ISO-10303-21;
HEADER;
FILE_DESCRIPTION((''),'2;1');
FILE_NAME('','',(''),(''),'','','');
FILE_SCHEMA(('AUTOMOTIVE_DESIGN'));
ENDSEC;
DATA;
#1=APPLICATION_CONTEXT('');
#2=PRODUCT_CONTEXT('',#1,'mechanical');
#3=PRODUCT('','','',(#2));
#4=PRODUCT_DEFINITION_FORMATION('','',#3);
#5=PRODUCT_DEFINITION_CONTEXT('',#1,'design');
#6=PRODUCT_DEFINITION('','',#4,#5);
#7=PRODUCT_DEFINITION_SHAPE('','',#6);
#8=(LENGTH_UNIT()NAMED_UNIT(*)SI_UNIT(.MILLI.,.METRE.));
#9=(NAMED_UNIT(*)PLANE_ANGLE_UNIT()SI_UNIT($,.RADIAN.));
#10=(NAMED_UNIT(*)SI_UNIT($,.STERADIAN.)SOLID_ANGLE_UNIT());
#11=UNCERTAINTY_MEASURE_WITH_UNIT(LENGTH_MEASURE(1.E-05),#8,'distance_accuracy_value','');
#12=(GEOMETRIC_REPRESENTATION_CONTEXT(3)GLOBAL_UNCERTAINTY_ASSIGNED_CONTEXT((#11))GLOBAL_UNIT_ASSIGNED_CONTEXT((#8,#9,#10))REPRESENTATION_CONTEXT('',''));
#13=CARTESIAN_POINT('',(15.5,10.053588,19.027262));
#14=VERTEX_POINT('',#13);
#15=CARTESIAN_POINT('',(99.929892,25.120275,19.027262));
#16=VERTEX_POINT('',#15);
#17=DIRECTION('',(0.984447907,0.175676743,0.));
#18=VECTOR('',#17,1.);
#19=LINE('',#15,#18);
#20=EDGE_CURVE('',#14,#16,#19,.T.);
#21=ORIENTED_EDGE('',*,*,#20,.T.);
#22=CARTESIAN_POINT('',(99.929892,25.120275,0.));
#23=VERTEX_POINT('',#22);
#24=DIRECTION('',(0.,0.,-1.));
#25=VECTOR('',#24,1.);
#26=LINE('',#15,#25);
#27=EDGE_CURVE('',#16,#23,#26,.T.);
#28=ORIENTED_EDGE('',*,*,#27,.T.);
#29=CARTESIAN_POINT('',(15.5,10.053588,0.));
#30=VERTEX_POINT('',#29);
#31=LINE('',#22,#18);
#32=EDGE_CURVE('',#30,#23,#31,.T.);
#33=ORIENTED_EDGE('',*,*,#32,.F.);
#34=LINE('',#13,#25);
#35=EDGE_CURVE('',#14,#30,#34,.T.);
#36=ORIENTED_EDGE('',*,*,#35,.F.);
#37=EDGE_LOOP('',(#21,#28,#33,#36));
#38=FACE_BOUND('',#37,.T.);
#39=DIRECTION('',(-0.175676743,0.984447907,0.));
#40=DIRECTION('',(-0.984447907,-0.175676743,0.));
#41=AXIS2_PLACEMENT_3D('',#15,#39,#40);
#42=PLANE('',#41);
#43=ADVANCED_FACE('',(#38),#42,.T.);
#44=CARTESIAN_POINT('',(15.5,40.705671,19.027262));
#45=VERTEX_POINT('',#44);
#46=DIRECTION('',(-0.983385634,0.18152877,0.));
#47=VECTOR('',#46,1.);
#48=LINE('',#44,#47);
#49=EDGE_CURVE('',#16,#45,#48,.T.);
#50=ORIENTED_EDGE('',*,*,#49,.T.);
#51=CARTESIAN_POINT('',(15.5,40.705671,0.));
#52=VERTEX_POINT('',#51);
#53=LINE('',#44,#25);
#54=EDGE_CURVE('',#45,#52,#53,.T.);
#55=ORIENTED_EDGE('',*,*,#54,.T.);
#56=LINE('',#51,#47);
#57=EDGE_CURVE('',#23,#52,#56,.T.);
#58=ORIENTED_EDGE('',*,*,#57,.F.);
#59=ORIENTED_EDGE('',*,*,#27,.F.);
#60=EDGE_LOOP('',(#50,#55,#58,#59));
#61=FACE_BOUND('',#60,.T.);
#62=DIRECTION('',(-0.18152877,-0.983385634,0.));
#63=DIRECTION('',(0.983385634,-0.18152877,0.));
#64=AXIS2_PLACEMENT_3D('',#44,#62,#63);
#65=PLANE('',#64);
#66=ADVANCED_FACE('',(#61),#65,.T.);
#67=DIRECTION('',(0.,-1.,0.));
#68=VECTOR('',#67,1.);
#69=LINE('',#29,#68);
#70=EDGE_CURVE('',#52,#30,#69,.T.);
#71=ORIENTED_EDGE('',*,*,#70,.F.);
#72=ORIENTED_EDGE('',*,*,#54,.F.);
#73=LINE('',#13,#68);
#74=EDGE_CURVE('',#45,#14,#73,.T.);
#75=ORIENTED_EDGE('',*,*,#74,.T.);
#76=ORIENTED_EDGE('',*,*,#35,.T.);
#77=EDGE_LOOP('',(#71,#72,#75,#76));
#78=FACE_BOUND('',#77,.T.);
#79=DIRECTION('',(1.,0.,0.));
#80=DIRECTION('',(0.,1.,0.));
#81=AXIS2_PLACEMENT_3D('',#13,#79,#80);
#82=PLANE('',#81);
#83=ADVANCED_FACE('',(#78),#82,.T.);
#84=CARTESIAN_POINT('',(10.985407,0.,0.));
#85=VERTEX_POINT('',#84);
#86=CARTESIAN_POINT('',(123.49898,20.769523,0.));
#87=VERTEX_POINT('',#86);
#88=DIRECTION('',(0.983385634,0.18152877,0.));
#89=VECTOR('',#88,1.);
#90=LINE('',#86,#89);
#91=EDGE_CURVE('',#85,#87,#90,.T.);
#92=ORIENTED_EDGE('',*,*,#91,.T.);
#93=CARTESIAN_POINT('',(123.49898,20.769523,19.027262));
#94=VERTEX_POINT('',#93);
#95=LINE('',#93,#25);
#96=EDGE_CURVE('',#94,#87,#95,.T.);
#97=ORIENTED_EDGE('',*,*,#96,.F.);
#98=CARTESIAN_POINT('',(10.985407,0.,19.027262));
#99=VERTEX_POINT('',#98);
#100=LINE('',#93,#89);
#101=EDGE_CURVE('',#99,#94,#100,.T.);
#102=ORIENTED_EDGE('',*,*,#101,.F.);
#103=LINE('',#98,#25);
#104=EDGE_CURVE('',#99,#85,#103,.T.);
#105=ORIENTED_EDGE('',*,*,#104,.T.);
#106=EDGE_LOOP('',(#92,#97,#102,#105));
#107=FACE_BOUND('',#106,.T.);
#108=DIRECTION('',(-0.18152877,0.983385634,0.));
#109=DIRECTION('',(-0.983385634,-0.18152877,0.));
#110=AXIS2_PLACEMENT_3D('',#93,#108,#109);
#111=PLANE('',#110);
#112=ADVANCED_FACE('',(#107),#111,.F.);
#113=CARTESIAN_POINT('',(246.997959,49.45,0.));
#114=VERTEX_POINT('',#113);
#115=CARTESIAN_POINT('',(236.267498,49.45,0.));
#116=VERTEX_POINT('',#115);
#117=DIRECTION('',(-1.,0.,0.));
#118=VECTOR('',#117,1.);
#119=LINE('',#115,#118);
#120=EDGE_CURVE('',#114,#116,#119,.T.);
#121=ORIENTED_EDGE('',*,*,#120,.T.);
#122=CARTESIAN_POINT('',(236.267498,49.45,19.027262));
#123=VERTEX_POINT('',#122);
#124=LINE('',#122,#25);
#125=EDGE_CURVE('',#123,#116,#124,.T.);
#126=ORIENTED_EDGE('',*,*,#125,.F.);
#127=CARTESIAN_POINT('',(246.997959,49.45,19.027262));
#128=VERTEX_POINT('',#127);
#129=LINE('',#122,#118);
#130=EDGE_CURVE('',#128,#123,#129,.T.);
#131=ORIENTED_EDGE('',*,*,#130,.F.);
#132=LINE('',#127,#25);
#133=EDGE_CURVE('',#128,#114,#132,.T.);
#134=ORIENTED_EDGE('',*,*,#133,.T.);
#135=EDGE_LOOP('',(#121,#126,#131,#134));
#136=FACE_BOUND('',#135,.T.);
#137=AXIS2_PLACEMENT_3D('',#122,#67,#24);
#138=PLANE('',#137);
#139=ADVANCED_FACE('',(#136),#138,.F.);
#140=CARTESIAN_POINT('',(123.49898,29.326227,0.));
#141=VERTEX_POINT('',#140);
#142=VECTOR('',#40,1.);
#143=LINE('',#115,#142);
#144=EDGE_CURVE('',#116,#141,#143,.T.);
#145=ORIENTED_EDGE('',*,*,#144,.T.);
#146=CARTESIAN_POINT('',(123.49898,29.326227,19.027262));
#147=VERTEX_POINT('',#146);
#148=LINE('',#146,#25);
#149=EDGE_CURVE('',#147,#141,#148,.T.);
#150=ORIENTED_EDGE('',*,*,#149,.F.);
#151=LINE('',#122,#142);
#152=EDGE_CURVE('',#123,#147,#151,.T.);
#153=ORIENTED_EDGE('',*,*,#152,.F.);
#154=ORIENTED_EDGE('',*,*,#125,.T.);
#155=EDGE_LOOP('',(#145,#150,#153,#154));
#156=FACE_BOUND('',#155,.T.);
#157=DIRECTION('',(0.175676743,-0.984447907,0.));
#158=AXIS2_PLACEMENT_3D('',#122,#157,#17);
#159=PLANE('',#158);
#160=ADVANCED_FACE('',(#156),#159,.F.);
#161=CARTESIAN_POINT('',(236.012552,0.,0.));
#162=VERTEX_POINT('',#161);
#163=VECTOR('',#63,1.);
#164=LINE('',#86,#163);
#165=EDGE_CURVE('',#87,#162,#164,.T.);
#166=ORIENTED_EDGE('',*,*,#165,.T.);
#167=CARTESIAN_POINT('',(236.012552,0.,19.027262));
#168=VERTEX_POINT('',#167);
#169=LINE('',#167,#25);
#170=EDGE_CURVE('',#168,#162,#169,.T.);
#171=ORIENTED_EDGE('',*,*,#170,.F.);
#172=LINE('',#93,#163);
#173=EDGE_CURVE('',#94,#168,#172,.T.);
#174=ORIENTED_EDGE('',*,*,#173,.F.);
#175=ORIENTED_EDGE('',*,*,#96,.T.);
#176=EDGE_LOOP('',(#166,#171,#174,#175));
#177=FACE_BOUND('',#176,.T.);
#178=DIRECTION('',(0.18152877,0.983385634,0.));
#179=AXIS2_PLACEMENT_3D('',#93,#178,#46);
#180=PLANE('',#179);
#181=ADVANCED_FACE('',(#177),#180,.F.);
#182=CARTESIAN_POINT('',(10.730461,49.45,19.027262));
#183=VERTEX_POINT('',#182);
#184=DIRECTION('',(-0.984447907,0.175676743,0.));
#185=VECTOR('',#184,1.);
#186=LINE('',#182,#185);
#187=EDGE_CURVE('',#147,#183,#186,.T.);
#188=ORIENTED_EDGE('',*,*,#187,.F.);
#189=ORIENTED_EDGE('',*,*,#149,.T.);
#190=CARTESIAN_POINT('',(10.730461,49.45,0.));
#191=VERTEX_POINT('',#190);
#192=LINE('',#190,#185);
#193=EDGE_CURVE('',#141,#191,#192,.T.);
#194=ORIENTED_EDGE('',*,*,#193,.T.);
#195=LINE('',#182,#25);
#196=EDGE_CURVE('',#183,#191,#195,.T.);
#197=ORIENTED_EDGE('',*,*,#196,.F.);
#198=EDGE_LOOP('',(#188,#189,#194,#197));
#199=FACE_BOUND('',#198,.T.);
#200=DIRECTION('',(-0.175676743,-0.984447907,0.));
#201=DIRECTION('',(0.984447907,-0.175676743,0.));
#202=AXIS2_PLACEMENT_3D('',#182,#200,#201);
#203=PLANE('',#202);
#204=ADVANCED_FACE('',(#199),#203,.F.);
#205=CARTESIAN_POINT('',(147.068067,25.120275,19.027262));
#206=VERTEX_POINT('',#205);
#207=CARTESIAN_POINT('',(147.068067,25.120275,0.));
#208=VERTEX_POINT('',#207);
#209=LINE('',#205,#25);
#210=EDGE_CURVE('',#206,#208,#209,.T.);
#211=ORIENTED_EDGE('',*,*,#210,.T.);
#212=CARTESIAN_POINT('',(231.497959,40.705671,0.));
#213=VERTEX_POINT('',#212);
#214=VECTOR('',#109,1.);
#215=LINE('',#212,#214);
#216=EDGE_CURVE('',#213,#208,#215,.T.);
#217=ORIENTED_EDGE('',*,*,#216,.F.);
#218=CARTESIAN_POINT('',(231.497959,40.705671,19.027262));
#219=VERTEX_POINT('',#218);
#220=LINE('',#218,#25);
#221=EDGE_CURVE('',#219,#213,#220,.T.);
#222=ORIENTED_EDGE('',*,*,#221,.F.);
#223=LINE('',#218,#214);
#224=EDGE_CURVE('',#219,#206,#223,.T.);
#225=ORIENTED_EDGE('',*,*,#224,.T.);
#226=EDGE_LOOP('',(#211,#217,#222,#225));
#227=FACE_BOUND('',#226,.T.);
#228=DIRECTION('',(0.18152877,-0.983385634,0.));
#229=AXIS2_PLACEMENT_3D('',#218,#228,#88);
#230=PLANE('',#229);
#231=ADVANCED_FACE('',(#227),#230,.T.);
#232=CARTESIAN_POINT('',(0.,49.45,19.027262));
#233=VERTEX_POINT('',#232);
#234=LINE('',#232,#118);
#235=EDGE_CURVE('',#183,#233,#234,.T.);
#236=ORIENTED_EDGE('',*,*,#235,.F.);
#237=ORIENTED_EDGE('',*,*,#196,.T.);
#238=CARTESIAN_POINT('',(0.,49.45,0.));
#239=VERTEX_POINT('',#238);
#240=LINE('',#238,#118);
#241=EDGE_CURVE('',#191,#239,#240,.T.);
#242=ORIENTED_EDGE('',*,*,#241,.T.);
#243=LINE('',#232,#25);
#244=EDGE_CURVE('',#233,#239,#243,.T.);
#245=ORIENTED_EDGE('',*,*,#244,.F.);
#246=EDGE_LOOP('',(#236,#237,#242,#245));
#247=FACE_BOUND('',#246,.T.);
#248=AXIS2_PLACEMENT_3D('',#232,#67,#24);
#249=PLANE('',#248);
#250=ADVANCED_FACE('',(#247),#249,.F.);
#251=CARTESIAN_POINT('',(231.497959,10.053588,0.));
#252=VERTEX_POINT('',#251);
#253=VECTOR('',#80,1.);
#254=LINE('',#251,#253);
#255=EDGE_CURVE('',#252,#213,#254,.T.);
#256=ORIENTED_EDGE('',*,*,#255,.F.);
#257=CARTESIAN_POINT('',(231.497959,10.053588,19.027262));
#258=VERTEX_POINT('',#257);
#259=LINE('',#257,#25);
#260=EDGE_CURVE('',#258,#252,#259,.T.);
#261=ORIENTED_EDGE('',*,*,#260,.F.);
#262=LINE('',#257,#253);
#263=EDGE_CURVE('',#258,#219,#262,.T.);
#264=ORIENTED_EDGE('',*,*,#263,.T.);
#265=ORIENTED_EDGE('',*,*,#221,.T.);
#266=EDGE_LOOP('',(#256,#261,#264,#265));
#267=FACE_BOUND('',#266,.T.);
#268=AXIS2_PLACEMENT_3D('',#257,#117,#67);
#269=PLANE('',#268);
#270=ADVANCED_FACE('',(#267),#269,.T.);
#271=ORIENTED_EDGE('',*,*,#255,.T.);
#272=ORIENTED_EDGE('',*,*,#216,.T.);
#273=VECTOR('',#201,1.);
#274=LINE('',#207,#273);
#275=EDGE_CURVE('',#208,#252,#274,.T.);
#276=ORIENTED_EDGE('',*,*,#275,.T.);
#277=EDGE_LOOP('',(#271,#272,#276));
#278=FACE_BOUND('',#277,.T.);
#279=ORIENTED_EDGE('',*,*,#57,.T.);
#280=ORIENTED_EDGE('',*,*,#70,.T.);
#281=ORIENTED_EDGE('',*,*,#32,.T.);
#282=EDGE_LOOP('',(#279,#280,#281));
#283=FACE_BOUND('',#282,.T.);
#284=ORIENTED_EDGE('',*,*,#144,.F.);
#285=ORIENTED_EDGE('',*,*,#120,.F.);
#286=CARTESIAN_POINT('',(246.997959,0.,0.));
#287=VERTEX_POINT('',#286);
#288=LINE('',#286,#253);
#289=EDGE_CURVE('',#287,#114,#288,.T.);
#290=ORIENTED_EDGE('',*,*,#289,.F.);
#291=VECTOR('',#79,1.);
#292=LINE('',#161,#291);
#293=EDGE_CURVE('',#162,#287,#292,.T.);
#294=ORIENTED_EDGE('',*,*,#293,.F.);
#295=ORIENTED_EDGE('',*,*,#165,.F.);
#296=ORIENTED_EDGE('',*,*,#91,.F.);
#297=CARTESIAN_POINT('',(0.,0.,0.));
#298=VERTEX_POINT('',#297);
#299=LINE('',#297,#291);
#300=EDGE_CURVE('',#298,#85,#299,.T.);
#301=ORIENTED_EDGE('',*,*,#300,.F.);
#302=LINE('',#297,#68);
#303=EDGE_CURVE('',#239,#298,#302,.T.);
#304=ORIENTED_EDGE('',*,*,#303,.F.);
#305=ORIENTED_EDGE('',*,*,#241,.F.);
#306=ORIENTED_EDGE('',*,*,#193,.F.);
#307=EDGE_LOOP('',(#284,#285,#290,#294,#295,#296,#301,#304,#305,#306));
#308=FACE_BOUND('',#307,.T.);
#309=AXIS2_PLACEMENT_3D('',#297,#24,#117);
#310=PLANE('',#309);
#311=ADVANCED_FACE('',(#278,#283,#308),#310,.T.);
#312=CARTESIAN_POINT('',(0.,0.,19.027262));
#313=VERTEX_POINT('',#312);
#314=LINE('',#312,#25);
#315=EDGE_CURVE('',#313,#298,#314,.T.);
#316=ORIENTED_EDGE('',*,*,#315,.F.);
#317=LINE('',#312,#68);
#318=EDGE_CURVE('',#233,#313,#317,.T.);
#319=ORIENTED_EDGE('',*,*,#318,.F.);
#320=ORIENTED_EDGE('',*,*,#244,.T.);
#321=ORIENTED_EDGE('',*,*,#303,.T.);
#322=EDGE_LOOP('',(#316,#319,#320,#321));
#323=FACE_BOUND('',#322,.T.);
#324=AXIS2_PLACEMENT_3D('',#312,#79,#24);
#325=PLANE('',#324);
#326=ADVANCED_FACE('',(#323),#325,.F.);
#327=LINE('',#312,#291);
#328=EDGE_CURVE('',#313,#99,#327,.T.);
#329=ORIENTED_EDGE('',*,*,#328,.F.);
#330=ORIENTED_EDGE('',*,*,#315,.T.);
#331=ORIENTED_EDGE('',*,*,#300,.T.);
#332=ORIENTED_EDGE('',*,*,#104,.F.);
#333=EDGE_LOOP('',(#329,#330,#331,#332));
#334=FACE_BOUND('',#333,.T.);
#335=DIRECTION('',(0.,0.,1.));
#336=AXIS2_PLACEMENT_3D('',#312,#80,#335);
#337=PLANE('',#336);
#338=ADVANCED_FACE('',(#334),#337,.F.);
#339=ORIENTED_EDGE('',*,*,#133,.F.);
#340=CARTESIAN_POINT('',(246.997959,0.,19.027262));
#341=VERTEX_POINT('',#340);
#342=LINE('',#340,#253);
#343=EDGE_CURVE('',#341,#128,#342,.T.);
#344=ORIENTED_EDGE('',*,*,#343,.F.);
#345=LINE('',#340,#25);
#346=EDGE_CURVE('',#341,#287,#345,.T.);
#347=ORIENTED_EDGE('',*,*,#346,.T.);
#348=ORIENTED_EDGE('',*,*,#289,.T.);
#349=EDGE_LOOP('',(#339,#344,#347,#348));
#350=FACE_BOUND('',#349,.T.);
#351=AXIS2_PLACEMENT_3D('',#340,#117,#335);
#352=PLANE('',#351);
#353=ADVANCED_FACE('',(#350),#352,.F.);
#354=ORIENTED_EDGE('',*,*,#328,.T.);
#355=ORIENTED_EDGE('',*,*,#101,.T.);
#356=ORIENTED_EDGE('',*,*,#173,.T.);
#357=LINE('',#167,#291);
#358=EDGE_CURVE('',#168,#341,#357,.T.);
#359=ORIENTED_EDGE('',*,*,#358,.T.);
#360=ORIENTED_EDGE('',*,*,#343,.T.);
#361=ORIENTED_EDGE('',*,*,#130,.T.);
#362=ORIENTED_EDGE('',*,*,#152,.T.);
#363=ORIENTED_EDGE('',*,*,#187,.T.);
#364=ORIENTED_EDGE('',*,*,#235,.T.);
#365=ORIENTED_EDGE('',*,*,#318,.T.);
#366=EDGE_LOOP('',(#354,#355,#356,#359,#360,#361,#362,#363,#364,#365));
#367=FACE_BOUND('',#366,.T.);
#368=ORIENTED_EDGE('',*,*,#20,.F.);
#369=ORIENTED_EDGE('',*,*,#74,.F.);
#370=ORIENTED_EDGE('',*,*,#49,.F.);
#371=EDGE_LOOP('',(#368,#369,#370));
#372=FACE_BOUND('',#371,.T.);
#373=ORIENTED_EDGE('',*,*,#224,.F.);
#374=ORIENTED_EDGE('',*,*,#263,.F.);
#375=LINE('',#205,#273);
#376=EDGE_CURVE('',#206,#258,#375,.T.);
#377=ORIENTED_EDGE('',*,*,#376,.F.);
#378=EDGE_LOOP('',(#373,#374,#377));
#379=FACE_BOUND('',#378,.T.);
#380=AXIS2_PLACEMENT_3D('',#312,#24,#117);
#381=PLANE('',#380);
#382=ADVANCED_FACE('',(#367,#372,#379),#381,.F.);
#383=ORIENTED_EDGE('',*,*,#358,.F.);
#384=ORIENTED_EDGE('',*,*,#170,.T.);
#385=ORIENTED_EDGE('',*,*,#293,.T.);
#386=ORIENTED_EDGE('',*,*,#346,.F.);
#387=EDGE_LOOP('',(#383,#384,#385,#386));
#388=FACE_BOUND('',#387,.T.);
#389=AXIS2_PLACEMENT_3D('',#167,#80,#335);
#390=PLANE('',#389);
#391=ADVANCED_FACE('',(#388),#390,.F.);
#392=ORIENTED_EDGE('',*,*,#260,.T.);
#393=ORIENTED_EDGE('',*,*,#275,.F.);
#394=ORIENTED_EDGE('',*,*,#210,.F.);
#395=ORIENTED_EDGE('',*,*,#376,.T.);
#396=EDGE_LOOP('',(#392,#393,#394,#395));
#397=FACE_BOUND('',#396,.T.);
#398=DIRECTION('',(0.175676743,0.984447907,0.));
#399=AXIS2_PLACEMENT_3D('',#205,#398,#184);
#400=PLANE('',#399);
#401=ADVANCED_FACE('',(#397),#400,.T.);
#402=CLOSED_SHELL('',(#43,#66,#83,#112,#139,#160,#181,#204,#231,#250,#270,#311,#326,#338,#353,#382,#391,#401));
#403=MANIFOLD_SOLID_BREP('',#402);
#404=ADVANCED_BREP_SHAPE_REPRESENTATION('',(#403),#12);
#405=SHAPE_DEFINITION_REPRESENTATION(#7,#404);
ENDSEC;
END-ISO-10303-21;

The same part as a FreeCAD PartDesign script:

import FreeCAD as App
import Part
import Sketcher


def add_polygon(sketch, points):
    """Adds a closed chain of lines whose ends are joined by coincident constraints."""
    first, n = sketch.GeometryCount, len(points)
    for a, b in zip(points, points[1:] + points[:1]):
        sketch.addGeometry(Part.LineSegment(App.Vector(*a, 0), App.Vector(*b, 0)), False)
    for i in range(n):
        sketch.addConstraint(Sketcher.Constraint("Coincident", first + i, 2, first + (i + 1) % n, 1))

doc = App.newDocument("Part")
body = doc.addObject("PartDesign::Body", "Body")

# Sketch on XY plane
sketch1 = body.newObject("Sketcher::SketchObject", "Sketch")
sketch1.AttachmentSupport = (doc.getObject("XY_Plane"), [""])
sketch1.MapMode = "FlatFace"
add_polygon(sketch1, [(0, 0), (11, 0), (123, 21), (236, 0), (247, 0), (247, 49), (236, 49), (123, 29), (11, 49), (0, 49)])  # lines 0-9
add_polygon(sketch1, [(16, 10), (16, 41), (100, 25)])  # lines 10-12
add_polygon(sketch1, [(147, 25), (231, 41), (231, 10)])  # lines 13-15
sketch1.addConstraint(Sketcher.Constraint("Horizontal", 0))
sketch1.addConstraint(Sketcher.Constraint("Horizontal", 3))
sketch1.addConstraint(Sketcher.Constraint("Vertical", 4))
sketch1.addConstraint(Sketcher.Constraint("Horizontal", 5))
sketch1.addConstraint(Sketcher.Constraint("Horizontal", 8))
sketch1.addConstraint(Sketcher.Constraint("Vertical", 9))
sketch1.addConstraint(Sketcher.Constraint("Vertical", 10))
sketch1.addConstraint(Sketcher.Constraint("Vertical", 14))
sketch1.addConstraint(Sketcher.Constraint("Coincident", 9, 2, -1, 1))
sketch1.addConstraint(Sketcher.Constraint("PointOnObject", 2, 2, -1))
sketch1.addConstraint(Sketcher.Constraint("Parallel", 2, 11))
sketch1.addConstraint(Sketcher.Constraint("Parallel", 6, 12))
sketch1.addConstraint(Sketcher.Constraint("Parallel", 1, 13))
sketch1.addConstraint(Sketcher.Constraint("Parallel", 7, 15))
sketch1.addConstraint(Sketcher.Constraint("Horizontal", 5, 2, 7, 2))
sketch1.addConstraint(Sketcher.Constraint("Horizontal", 10, 2, 13, 2))
sketch1.addConstraint(Sketcher.Constraint("Horizontal", 12, 2, 14, 2))
sketch1.addConstraint(Sketcher.Constraint("Horizontal", 11, 2, 15, 2))
sketch1.addConstraint(Sketcher.Constraint("Vertical", 1, 2, 6, 2))
sketch1.addConstraint(Sketcher.Constraint("Equal", 0, 3))
sketch1.addConstraint(Sketcher.Constraint("Equal", 1, 2))
sketch1.addConstraint(Sketcher.Constraint("DistanceY", 4, 1, 4, 2, 49.45))
sketch1.addConstraint(Sketcher.Constraint("DistanceX", -1, 1, 10, 2, 15.5))
sketch1.addConstraint(Sketcher.Constraint("DistanceX", 13, 2, 4, 2, 15.5))
sketch1.addConstraint(Sketcher.Constraint("DistanceX", 5, 2, 5, 1, 10.730461))
sketch1.addConstraint(Sketcher.Constraint("Distance", 6, 114.550011))
sketch1.addConstraint(Sketcher.Constraint("Distance", 11, 85.856341))
sketch1.addConstraint(Sketcher.Constraint("DistanceX", 0, 1, 0, 2, 10.985407))
sketch1.addConstraint(Sketcher.Constraint("DistanceY", 10, 1, 10, 2, 30.652083))
sketch1.addConstraint(Sketcher.Constraint("DistanceX", -1, 1, 1, 2, 123.49898))
sketch1.addConstraint(Sketcher.Constraint("DistanceY", -1, 1, 10, 2, 40.705671))
pad1 = body.newObject("PartDesign::Pad", "Pad")
pad1.Profile = sketch1
pad1.Length = 19.027262

doc.recompute()
